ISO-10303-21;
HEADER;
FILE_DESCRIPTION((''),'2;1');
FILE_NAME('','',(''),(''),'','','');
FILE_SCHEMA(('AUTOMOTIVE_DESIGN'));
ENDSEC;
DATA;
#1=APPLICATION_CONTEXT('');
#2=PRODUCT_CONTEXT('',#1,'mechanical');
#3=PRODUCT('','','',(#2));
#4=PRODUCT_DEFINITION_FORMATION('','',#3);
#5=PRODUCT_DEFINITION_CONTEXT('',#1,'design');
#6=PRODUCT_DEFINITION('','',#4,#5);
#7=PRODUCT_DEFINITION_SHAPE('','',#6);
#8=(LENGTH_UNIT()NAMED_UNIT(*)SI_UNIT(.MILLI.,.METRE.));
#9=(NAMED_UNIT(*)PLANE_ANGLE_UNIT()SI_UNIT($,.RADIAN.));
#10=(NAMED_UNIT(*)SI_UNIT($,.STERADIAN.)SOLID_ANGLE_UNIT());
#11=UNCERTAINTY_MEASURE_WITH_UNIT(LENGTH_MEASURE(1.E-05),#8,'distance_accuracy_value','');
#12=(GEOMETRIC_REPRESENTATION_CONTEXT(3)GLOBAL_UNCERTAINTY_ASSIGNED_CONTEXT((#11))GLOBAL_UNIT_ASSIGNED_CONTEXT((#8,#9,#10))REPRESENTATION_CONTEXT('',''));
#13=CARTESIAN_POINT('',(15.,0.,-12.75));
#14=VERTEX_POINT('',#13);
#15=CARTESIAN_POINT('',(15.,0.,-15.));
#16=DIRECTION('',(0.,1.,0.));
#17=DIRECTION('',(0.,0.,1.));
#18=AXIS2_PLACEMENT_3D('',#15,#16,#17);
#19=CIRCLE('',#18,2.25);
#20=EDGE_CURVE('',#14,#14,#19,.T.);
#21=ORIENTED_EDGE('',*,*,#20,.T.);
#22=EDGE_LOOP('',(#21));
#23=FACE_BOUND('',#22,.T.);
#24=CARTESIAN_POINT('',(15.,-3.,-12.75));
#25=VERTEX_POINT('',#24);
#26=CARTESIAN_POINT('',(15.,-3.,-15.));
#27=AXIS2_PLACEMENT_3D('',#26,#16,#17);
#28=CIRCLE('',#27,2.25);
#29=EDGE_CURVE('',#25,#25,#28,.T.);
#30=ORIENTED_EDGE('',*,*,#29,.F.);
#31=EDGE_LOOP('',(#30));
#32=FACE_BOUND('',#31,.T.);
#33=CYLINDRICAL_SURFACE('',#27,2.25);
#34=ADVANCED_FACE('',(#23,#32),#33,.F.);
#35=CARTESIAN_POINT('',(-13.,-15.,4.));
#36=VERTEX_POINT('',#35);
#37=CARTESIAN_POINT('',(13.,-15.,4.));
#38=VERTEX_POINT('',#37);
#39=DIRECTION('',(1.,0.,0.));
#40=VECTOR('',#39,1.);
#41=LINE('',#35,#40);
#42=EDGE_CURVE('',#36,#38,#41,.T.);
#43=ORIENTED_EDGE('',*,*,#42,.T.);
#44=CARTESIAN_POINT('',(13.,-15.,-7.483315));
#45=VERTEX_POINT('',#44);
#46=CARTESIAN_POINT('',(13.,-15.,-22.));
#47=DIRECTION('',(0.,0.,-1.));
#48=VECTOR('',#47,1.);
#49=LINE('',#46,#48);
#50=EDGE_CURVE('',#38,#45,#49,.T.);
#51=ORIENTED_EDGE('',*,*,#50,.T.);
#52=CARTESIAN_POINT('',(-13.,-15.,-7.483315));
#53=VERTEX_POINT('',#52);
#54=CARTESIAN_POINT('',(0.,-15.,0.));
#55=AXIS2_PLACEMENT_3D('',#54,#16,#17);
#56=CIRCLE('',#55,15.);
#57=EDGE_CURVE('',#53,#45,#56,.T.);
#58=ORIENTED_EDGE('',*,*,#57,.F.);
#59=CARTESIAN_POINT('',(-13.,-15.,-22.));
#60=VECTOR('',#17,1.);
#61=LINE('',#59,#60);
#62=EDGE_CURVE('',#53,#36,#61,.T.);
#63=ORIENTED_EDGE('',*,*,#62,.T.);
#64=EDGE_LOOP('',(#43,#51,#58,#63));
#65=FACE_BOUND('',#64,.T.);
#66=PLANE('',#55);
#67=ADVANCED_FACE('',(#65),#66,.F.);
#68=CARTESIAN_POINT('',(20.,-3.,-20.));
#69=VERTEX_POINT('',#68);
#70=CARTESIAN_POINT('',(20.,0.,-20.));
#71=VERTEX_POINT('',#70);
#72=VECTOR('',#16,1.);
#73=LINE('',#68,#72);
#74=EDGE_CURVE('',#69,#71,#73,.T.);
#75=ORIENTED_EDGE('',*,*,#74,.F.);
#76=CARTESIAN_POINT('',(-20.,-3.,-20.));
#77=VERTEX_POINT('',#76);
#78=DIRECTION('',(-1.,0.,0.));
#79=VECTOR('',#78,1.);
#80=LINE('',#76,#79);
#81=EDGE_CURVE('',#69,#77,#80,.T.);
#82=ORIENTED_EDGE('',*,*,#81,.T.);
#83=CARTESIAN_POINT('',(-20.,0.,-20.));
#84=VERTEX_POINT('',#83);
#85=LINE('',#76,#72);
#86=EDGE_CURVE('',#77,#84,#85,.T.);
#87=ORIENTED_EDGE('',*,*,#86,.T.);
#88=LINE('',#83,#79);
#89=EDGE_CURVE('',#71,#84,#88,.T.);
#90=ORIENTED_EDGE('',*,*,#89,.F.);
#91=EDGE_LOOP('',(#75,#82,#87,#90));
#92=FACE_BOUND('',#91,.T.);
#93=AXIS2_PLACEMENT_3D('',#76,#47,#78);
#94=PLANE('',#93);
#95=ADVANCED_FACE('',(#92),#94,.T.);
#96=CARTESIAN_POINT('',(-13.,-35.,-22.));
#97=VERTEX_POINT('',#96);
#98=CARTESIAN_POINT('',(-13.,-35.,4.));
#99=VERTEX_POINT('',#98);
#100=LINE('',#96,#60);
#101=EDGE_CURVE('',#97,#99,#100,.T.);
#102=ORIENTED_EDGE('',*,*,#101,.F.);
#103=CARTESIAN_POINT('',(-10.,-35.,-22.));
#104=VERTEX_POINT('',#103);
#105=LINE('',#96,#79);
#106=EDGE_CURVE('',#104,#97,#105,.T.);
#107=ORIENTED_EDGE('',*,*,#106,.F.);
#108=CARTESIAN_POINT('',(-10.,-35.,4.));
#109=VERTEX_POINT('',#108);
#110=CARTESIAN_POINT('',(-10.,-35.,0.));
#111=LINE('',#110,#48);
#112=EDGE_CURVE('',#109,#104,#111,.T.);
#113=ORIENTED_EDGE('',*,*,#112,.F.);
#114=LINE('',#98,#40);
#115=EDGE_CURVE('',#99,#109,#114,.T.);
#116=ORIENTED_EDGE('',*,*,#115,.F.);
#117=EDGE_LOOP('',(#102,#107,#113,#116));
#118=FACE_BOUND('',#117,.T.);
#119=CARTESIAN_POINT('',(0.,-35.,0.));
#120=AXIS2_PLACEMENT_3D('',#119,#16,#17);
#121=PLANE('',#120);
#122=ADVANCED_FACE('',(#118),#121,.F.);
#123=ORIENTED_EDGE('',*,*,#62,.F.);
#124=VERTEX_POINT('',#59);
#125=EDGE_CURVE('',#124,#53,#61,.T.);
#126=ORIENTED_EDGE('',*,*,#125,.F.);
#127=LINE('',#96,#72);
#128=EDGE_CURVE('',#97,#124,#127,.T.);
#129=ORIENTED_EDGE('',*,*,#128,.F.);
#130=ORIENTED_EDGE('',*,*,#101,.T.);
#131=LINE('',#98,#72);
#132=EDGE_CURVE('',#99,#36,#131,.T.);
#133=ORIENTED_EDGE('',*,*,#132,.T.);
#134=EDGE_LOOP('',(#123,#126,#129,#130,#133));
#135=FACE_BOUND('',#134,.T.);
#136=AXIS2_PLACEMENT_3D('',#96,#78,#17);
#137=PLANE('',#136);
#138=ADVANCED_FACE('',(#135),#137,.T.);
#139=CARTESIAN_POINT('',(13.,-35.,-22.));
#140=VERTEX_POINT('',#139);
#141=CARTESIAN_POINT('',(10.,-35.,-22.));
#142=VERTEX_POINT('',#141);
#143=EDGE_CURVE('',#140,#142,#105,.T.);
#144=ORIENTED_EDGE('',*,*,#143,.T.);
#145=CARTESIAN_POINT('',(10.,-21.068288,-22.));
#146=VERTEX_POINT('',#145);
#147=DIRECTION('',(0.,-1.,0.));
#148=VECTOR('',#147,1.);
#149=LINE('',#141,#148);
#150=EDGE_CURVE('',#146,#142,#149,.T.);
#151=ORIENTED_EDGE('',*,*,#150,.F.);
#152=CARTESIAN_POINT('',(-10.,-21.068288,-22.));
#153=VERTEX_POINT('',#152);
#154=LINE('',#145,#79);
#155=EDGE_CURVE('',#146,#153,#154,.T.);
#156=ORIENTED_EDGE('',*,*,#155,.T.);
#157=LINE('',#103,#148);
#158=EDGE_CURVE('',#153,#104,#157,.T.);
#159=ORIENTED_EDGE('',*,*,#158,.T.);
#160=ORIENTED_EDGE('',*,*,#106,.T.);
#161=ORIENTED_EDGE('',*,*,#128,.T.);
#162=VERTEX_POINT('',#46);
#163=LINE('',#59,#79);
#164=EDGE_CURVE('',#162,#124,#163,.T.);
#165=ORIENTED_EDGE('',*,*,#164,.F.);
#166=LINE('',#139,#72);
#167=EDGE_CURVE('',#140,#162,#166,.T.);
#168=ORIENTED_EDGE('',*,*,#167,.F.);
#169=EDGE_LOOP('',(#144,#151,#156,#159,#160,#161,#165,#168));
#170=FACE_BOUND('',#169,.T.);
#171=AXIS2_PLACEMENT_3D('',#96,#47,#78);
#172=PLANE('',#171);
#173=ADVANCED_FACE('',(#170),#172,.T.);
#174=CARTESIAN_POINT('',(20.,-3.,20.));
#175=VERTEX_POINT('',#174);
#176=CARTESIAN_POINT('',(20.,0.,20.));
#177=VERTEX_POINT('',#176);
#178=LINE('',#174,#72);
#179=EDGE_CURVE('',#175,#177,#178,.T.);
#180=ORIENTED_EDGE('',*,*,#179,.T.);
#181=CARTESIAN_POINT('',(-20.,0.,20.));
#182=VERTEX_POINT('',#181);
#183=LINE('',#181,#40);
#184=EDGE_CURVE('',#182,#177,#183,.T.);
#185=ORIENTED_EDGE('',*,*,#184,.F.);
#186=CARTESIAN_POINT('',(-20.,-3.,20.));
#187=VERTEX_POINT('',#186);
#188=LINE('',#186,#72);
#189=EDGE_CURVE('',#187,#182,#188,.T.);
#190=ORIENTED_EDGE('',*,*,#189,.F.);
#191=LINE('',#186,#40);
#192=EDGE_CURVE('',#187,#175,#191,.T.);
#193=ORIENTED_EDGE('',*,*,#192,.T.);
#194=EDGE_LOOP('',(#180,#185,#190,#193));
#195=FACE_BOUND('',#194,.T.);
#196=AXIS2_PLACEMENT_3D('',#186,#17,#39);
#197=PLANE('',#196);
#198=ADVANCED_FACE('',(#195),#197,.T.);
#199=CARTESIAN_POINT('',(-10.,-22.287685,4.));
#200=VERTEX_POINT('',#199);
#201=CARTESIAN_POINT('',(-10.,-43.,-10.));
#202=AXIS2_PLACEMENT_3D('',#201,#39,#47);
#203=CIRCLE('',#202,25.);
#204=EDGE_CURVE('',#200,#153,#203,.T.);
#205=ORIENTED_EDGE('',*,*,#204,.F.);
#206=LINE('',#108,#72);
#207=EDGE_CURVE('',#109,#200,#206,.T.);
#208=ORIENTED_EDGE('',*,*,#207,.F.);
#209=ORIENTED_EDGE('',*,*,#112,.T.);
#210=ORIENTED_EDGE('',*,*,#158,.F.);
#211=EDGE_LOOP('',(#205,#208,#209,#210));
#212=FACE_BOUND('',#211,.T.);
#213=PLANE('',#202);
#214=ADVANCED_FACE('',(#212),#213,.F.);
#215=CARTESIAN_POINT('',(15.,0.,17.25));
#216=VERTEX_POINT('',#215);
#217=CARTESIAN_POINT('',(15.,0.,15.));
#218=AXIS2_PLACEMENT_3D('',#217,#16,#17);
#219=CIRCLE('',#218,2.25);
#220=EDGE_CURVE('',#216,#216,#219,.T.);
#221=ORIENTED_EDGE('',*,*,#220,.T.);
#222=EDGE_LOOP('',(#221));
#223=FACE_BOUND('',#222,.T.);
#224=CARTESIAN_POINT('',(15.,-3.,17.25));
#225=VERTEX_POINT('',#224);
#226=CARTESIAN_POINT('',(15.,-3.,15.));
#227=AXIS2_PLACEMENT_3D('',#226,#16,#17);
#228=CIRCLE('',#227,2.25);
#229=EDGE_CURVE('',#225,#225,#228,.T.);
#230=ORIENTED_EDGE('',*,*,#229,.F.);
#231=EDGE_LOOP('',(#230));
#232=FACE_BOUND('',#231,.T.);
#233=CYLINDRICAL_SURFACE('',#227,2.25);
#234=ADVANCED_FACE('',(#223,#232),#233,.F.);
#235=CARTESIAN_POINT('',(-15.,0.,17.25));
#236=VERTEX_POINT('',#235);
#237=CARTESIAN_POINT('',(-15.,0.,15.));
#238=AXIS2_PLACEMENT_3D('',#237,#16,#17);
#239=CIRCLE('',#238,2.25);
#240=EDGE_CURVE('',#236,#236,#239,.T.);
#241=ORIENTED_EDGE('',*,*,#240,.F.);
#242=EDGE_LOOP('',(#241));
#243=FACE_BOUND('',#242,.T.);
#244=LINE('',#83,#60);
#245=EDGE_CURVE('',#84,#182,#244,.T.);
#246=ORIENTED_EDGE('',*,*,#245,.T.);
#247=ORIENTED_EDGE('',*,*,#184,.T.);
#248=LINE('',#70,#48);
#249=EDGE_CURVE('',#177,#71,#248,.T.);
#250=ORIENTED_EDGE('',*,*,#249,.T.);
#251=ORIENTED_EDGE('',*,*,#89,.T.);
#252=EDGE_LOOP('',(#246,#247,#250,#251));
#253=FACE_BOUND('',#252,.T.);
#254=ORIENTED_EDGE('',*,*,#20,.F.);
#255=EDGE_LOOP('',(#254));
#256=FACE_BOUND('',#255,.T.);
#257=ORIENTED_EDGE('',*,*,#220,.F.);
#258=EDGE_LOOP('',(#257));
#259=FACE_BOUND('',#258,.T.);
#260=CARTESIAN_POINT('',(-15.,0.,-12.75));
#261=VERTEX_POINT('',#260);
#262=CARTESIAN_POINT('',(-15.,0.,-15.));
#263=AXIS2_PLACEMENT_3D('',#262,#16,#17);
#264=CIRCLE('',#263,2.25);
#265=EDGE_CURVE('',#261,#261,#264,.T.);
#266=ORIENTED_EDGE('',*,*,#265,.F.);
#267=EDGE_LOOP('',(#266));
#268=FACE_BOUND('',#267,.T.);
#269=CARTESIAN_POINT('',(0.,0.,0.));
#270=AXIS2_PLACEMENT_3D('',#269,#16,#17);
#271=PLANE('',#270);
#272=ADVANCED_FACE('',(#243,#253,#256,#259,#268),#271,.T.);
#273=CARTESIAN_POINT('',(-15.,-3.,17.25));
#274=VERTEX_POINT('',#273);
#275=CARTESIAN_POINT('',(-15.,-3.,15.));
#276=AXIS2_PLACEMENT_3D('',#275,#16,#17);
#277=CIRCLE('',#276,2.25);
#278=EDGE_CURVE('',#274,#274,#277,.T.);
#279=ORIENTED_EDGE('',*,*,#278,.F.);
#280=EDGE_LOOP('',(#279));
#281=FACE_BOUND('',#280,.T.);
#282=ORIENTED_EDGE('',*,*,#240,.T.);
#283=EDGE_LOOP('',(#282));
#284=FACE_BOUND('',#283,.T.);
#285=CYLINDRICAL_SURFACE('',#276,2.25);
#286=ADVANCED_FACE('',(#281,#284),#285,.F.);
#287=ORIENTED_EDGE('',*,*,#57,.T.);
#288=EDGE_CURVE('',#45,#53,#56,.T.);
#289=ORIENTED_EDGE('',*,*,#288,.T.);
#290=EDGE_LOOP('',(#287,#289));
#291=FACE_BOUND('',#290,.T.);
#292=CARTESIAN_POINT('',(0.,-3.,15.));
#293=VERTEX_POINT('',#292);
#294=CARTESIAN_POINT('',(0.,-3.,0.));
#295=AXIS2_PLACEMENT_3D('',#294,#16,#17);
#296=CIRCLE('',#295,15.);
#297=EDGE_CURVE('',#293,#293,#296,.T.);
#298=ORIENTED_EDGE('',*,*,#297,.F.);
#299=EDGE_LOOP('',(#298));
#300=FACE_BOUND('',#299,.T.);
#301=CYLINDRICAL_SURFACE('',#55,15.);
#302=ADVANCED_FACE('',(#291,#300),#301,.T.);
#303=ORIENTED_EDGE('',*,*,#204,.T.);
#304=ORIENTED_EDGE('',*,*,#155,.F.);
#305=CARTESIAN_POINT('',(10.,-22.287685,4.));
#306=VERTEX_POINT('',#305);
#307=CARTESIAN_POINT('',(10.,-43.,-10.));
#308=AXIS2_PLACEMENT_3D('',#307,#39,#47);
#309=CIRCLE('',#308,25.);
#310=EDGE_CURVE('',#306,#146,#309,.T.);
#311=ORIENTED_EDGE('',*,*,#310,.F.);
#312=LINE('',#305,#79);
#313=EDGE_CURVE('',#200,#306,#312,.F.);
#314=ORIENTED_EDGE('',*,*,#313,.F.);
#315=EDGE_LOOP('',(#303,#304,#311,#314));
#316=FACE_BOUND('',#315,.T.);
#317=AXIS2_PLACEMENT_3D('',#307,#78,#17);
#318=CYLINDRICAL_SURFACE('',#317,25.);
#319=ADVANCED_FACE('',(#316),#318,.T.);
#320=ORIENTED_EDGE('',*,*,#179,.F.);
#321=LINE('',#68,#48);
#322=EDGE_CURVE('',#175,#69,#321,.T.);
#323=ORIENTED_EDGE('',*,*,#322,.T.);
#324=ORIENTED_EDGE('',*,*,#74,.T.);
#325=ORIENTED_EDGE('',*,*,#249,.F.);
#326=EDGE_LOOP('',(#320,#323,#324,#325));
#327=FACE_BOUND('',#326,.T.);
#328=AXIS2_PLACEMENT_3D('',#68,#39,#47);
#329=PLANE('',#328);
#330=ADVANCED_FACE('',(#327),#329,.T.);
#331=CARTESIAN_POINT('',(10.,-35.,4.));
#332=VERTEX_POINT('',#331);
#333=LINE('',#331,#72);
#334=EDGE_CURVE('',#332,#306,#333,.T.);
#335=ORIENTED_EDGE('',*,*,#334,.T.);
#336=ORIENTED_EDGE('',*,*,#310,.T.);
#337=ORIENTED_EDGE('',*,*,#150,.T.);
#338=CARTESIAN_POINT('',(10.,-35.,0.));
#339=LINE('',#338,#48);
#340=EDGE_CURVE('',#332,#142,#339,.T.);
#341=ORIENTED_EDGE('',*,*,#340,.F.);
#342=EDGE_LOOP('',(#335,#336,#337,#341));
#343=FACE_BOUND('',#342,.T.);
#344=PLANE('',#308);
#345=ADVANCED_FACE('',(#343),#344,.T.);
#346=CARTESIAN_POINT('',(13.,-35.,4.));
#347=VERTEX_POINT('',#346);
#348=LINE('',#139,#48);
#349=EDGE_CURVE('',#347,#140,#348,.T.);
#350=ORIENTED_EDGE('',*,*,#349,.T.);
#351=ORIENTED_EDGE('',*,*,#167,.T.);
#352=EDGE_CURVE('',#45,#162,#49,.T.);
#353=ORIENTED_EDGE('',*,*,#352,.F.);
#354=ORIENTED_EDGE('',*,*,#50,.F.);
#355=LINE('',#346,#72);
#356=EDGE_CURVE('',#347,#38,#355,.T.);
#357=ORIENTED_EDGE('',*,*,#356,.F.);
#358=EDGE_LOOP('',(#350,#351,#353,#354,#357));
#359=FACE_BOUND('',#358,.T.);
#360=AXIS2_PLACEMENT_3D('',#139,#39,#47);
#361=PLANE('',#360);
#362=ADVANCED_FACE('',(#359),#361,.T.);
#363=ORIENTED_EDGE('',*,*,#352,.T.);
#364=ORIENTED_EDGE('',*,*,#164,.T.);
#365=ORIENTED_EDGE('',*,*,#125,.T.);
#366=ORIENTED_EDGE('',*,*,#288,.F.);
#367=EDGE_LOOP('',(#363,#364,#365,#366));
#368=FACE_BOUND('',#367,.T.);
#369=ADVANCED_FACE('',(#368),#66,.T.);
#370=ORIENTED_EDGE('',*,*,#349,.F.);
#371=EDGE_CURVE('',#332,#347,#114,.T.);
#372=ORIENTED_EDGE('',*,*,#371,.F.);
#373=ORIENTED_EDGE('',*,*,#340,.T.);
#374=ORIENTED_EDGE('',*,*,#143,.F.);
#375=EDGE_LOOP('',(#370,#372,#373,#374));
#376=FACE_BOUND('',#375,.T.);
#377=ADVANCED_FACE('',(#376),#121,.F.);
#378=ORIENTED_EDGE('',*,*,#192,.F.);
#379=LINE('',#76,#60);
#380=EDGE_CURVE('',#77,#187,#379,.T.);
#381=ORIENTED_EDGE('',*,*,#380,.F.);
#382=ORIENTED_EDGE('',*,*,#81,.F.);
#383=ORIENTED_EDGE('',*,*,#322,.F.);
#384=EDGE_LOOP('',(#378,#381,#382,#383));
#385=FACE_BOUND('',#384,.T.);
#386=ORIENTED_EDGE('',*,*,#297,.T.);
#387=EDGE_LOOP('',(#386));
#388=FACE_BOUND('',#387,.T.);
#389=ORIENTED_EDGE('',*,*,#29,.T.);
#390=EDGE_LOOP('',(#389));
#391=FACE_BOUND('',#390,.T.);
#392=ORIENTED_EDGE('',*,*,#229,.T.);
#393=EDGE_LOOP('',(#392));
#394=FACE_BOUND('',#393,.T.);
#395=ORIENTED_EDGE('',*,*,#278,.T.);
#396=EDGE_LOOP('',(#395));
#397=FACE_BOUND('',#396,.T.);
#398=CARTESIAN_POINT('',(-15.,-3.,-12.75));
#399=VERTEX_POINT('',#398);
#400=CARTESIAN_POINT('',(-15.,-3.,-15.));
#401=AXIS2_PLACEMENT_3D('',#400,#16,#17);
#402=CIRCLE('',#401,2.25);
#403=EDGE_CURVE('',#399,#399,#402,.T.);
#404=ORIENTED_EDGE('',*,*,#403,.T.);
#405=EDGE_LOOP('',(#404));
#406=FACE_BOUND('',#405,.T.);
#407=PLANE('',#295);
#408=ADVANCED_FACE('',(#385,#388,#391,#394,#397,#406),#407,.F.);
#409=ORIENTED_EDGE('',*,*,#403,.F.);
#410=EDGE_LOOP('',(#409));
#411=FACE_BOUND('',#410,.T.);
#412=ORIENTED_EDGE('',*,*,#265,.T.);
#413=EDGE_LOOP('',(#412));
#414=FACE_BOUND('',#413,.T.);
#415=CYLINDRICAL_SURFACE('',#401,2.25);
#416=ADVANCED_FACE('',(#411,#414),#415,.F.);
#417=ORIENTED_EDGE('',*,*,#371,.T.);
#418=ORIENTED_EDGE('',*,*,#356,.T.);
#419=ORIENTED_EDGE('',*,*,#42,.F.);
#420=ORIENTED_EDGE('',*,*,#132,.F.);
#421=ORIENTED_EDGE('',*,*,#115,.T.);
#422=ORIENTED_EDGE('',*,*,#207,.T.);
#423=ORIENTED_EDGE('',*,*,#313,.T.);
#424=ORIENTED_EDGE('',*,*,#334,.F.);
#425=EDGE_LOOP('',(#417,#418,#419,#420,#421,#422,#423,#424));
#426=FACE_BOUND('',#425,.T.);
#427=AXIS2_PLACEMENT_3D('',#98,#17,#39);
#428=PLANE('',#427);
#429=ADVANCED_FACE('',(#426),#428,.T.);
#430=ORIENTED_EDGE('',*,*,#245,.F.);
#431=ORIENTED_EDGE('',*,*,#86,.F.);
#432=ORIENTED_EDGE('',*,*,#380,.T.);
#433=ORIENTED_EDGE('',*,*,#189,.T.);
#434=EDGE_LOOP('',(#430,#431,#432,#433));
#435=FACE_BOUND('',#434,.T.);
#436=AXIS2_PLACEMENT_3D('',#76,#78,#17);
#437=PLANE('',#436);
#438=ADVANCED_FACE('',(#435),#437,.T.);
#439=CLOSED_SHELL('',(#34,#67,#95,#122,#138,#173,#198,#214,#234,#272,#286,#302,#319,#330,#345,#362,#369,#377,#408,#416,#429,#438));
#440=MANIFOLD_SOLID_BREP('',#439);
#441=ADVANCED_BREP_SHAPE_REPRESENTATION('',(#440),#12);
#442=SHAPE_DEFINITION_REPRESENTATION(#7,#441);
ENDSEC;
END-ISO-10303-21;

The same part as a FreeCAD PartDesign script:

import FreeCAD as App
import Part
import Sketcher


def add_polygon(sketch, points):
    """Adds a closed chain of lines whose ends are joined by coincident constraints."""
    first, n = sketch.GeometryCount, len(points)
    for a, b in zip(points, points[1:] + points[:1]):
        sketch.addGeometry(Part.LineSegment(App.Vector(*a, 0), App.Vector(*b, 0)), False)
    for i in range(n):
        sketch.addConstraint(Sketcher.Constraint("Coincident", first + i, 2, first + (i + 1) % n, 1))

doc = App.newDocument("Part")
body = doc.addObject("PartDesign::Body", "Body")

# Sketch on XZ plane
sketch1 = doc.addObject("Sketcher::SketchObject", "Sketch")
body.addObject(sketch1)
sketch1.AttachmentSupport = (doc.XZ_Plane, [""])
sketch1.MapMode = "FlatFace"
add_polygon(sketch1, [(-20, -20), (-20, 20), (20, 20), (20, -20)])  # lines 0-3
sketch1.addConstraint([
    Sketcher.Constraint("Vertical", 0),
    Sketcher.Constraint("Horizontal", 1),
    Sketcher.Constraint("Vertical", 2),
    Sketcher.Constraint("Horizontal", 3),
    Sketcher.Constraint("Symmetric", 0, 2, 2, 2, -1, 1),
    Sketcher.Constraint("Equal", 3, 0),
    Sketcher.Constraint("DistanceX", 1, 1, 1, 2, 40.0),
])
pad1 = doc.addObject("PartDesign::Pad", "Pad")
body.addObject(pad1)
pad1.Profile = sketch1
pad1.Length = 3

# Sketch on XZ plane
sketch2 = doc.addObject("Sketcher::SketchObject", "Sketch001")
body.addObject(sketch2)
sketch2.AttachmentSupport = (doc.XZ_Plane, [""])
sketch2.MapMode = "FlatFace"
sketch2.addGeometry([
    Part.Circle(App.Vector(15, 15, 0), App.Vector(0, 0, 1), 2.2),
    Part.Circle(App.Vector(-15, 15, 0), App.Vector(0, 0, 1), 2.2),
    Part.Circle(App.Vector(15, -15, 0), App.Vector(0, 0, 1), 2.2),
    Part.Circle(App.Vector(-15, -15, 0), App.Vector(0, 0, 1), 2.2),
], False)
sketch2.addConstraint([
    Sketcher.Constraint("Equal", 0, 1),
    Sketcher.Constraint("Equal", 1, 2),
    Sketcher.Constraint("Equal", 2, 3),
    Sketcher.Constraint("Symmetric", 1, 3, 2, 3, -1, 1),
    Sketcher.Constraint("Symmetric", 0, 3, 3, 3, -1, 1),
    Sketcher.Constraint("Symmetric", 0, 3, 1, 3, -2),
    Sketcher.Constraint("Diameter", 0, 4.5),
    Sketcher.Constraint("DistanceX", -1, 1, 0, 3, 15.0),
    Sketcher.Constraint("DistanceY", -1, 1, 0, 3, 15.0),
])
pocket1 = doc.addObject("PartDesign::Pocket", "Pocket")
body.addObject(pocket1)
pocket1.Profile = sketch2
pocket1.Length = 3
pocket1.Reversed = True

# Sketch on XZ plane
sketch3 = doc.addObject("Sketcher::SketchObject", "Sketch002")
body.addObject(sketch3)
sketch3.AttachmentSupport = (doc.XZ_Plane, [""])
sketch3.MapMode = "FlatFace"
sketch3.AttachmentOffset = App.Placement(App.Vector(0, 0, 3), App.Rotation())
sketch3.addGeometry(Part.Circle(App.Vector(0, 0, 0), App.Vector(0, 0, 1), 15), False)
sketch3.addConstraint([
    Sketcher.Constraint("Coincident", 0, 3, -1, 1),
    Sketcher.Constraint("Diameter", 0, 30.0),
])
pad2 = doc.addObject("PartDesign::Pad", "Pad001")
body.addObject(pad2)
pad2.Profile = sketch3
pad2.Length = 12

# Sketch on XZ plane
sketch4 = doc.addObject("Sketcher::SketchObject", "Sketch003")
body.addObject(sketch4)
sketch4.AttachmentSupport = (doc.XZ_Plane, [""])
sketch4.MapMode = "FlatFace"
sketch4.AttachmentOffset = App.Placement(App.Vector(0, 0, 15), App.Rotation())
add_polygon(sketch4, [(-13, -22), (-13, 4), (13, 4), (13, -22)])  # lines 0-3
sketch4.addConstraint([
    Sketcher.Constraint("Vertical", 0),
    Sketcher.Constraint("Horizontal", 1),
    Sketcher.Constraint("Vertical", 2),
    Sketcher.Constraint("Horizontal", 3),
    Sketcher.Constraint("Equal", 3, 0),
    Sketcher.Constraint("DistanceX", 1, 1, 1, 2, 26.0),
    Sketcher.Constraint("DistanceX", 0, 2, -1, 1, 13.0),
    Sketcher.Constraint("DistanceY", -1, 1, 0, 2, 4.0),
])
pad3 = doc.addObject("PartDesign::Pad", "Pad002")
body.addObject(pad3)
pad3.Profile = sketch4
pad3.Length = 20

# Sketch on YZ plane
sketch5 = doc.addObject("Sketcher::SketchObject", "Sketch004")
body.addObject(sketch5)
sketch5.AttachmentSupport = (doc.YZ_Plane, [""])
sketch5.MapMode = "FlatFace"
sketch5.AttachmentOffset = App.Placement(App.Vector(0, 0, -10), App.Rotation())
sketch5.addGeometry(Part.Circle(App.Vector(-43, -10, 0), App.Vector(0, 0, 1), 25), False)
sketch5.addConstraint([
    Sketcher.Constraint("Diameter", 0, 50.0),
    Sketcher.Constraint("DistanceX", 0, 3, -1, 1, 43.0),
    Sketcher.Constraint("DistanceY", 0, 3, -1, 1, 10.0),
])
pad4 = doc.addObject("PartDesign::Pad", "Pad003")
body.addObject(pad4)
pad4.Profile = sketch5
pad4.Length = 20

doc.recompute()
